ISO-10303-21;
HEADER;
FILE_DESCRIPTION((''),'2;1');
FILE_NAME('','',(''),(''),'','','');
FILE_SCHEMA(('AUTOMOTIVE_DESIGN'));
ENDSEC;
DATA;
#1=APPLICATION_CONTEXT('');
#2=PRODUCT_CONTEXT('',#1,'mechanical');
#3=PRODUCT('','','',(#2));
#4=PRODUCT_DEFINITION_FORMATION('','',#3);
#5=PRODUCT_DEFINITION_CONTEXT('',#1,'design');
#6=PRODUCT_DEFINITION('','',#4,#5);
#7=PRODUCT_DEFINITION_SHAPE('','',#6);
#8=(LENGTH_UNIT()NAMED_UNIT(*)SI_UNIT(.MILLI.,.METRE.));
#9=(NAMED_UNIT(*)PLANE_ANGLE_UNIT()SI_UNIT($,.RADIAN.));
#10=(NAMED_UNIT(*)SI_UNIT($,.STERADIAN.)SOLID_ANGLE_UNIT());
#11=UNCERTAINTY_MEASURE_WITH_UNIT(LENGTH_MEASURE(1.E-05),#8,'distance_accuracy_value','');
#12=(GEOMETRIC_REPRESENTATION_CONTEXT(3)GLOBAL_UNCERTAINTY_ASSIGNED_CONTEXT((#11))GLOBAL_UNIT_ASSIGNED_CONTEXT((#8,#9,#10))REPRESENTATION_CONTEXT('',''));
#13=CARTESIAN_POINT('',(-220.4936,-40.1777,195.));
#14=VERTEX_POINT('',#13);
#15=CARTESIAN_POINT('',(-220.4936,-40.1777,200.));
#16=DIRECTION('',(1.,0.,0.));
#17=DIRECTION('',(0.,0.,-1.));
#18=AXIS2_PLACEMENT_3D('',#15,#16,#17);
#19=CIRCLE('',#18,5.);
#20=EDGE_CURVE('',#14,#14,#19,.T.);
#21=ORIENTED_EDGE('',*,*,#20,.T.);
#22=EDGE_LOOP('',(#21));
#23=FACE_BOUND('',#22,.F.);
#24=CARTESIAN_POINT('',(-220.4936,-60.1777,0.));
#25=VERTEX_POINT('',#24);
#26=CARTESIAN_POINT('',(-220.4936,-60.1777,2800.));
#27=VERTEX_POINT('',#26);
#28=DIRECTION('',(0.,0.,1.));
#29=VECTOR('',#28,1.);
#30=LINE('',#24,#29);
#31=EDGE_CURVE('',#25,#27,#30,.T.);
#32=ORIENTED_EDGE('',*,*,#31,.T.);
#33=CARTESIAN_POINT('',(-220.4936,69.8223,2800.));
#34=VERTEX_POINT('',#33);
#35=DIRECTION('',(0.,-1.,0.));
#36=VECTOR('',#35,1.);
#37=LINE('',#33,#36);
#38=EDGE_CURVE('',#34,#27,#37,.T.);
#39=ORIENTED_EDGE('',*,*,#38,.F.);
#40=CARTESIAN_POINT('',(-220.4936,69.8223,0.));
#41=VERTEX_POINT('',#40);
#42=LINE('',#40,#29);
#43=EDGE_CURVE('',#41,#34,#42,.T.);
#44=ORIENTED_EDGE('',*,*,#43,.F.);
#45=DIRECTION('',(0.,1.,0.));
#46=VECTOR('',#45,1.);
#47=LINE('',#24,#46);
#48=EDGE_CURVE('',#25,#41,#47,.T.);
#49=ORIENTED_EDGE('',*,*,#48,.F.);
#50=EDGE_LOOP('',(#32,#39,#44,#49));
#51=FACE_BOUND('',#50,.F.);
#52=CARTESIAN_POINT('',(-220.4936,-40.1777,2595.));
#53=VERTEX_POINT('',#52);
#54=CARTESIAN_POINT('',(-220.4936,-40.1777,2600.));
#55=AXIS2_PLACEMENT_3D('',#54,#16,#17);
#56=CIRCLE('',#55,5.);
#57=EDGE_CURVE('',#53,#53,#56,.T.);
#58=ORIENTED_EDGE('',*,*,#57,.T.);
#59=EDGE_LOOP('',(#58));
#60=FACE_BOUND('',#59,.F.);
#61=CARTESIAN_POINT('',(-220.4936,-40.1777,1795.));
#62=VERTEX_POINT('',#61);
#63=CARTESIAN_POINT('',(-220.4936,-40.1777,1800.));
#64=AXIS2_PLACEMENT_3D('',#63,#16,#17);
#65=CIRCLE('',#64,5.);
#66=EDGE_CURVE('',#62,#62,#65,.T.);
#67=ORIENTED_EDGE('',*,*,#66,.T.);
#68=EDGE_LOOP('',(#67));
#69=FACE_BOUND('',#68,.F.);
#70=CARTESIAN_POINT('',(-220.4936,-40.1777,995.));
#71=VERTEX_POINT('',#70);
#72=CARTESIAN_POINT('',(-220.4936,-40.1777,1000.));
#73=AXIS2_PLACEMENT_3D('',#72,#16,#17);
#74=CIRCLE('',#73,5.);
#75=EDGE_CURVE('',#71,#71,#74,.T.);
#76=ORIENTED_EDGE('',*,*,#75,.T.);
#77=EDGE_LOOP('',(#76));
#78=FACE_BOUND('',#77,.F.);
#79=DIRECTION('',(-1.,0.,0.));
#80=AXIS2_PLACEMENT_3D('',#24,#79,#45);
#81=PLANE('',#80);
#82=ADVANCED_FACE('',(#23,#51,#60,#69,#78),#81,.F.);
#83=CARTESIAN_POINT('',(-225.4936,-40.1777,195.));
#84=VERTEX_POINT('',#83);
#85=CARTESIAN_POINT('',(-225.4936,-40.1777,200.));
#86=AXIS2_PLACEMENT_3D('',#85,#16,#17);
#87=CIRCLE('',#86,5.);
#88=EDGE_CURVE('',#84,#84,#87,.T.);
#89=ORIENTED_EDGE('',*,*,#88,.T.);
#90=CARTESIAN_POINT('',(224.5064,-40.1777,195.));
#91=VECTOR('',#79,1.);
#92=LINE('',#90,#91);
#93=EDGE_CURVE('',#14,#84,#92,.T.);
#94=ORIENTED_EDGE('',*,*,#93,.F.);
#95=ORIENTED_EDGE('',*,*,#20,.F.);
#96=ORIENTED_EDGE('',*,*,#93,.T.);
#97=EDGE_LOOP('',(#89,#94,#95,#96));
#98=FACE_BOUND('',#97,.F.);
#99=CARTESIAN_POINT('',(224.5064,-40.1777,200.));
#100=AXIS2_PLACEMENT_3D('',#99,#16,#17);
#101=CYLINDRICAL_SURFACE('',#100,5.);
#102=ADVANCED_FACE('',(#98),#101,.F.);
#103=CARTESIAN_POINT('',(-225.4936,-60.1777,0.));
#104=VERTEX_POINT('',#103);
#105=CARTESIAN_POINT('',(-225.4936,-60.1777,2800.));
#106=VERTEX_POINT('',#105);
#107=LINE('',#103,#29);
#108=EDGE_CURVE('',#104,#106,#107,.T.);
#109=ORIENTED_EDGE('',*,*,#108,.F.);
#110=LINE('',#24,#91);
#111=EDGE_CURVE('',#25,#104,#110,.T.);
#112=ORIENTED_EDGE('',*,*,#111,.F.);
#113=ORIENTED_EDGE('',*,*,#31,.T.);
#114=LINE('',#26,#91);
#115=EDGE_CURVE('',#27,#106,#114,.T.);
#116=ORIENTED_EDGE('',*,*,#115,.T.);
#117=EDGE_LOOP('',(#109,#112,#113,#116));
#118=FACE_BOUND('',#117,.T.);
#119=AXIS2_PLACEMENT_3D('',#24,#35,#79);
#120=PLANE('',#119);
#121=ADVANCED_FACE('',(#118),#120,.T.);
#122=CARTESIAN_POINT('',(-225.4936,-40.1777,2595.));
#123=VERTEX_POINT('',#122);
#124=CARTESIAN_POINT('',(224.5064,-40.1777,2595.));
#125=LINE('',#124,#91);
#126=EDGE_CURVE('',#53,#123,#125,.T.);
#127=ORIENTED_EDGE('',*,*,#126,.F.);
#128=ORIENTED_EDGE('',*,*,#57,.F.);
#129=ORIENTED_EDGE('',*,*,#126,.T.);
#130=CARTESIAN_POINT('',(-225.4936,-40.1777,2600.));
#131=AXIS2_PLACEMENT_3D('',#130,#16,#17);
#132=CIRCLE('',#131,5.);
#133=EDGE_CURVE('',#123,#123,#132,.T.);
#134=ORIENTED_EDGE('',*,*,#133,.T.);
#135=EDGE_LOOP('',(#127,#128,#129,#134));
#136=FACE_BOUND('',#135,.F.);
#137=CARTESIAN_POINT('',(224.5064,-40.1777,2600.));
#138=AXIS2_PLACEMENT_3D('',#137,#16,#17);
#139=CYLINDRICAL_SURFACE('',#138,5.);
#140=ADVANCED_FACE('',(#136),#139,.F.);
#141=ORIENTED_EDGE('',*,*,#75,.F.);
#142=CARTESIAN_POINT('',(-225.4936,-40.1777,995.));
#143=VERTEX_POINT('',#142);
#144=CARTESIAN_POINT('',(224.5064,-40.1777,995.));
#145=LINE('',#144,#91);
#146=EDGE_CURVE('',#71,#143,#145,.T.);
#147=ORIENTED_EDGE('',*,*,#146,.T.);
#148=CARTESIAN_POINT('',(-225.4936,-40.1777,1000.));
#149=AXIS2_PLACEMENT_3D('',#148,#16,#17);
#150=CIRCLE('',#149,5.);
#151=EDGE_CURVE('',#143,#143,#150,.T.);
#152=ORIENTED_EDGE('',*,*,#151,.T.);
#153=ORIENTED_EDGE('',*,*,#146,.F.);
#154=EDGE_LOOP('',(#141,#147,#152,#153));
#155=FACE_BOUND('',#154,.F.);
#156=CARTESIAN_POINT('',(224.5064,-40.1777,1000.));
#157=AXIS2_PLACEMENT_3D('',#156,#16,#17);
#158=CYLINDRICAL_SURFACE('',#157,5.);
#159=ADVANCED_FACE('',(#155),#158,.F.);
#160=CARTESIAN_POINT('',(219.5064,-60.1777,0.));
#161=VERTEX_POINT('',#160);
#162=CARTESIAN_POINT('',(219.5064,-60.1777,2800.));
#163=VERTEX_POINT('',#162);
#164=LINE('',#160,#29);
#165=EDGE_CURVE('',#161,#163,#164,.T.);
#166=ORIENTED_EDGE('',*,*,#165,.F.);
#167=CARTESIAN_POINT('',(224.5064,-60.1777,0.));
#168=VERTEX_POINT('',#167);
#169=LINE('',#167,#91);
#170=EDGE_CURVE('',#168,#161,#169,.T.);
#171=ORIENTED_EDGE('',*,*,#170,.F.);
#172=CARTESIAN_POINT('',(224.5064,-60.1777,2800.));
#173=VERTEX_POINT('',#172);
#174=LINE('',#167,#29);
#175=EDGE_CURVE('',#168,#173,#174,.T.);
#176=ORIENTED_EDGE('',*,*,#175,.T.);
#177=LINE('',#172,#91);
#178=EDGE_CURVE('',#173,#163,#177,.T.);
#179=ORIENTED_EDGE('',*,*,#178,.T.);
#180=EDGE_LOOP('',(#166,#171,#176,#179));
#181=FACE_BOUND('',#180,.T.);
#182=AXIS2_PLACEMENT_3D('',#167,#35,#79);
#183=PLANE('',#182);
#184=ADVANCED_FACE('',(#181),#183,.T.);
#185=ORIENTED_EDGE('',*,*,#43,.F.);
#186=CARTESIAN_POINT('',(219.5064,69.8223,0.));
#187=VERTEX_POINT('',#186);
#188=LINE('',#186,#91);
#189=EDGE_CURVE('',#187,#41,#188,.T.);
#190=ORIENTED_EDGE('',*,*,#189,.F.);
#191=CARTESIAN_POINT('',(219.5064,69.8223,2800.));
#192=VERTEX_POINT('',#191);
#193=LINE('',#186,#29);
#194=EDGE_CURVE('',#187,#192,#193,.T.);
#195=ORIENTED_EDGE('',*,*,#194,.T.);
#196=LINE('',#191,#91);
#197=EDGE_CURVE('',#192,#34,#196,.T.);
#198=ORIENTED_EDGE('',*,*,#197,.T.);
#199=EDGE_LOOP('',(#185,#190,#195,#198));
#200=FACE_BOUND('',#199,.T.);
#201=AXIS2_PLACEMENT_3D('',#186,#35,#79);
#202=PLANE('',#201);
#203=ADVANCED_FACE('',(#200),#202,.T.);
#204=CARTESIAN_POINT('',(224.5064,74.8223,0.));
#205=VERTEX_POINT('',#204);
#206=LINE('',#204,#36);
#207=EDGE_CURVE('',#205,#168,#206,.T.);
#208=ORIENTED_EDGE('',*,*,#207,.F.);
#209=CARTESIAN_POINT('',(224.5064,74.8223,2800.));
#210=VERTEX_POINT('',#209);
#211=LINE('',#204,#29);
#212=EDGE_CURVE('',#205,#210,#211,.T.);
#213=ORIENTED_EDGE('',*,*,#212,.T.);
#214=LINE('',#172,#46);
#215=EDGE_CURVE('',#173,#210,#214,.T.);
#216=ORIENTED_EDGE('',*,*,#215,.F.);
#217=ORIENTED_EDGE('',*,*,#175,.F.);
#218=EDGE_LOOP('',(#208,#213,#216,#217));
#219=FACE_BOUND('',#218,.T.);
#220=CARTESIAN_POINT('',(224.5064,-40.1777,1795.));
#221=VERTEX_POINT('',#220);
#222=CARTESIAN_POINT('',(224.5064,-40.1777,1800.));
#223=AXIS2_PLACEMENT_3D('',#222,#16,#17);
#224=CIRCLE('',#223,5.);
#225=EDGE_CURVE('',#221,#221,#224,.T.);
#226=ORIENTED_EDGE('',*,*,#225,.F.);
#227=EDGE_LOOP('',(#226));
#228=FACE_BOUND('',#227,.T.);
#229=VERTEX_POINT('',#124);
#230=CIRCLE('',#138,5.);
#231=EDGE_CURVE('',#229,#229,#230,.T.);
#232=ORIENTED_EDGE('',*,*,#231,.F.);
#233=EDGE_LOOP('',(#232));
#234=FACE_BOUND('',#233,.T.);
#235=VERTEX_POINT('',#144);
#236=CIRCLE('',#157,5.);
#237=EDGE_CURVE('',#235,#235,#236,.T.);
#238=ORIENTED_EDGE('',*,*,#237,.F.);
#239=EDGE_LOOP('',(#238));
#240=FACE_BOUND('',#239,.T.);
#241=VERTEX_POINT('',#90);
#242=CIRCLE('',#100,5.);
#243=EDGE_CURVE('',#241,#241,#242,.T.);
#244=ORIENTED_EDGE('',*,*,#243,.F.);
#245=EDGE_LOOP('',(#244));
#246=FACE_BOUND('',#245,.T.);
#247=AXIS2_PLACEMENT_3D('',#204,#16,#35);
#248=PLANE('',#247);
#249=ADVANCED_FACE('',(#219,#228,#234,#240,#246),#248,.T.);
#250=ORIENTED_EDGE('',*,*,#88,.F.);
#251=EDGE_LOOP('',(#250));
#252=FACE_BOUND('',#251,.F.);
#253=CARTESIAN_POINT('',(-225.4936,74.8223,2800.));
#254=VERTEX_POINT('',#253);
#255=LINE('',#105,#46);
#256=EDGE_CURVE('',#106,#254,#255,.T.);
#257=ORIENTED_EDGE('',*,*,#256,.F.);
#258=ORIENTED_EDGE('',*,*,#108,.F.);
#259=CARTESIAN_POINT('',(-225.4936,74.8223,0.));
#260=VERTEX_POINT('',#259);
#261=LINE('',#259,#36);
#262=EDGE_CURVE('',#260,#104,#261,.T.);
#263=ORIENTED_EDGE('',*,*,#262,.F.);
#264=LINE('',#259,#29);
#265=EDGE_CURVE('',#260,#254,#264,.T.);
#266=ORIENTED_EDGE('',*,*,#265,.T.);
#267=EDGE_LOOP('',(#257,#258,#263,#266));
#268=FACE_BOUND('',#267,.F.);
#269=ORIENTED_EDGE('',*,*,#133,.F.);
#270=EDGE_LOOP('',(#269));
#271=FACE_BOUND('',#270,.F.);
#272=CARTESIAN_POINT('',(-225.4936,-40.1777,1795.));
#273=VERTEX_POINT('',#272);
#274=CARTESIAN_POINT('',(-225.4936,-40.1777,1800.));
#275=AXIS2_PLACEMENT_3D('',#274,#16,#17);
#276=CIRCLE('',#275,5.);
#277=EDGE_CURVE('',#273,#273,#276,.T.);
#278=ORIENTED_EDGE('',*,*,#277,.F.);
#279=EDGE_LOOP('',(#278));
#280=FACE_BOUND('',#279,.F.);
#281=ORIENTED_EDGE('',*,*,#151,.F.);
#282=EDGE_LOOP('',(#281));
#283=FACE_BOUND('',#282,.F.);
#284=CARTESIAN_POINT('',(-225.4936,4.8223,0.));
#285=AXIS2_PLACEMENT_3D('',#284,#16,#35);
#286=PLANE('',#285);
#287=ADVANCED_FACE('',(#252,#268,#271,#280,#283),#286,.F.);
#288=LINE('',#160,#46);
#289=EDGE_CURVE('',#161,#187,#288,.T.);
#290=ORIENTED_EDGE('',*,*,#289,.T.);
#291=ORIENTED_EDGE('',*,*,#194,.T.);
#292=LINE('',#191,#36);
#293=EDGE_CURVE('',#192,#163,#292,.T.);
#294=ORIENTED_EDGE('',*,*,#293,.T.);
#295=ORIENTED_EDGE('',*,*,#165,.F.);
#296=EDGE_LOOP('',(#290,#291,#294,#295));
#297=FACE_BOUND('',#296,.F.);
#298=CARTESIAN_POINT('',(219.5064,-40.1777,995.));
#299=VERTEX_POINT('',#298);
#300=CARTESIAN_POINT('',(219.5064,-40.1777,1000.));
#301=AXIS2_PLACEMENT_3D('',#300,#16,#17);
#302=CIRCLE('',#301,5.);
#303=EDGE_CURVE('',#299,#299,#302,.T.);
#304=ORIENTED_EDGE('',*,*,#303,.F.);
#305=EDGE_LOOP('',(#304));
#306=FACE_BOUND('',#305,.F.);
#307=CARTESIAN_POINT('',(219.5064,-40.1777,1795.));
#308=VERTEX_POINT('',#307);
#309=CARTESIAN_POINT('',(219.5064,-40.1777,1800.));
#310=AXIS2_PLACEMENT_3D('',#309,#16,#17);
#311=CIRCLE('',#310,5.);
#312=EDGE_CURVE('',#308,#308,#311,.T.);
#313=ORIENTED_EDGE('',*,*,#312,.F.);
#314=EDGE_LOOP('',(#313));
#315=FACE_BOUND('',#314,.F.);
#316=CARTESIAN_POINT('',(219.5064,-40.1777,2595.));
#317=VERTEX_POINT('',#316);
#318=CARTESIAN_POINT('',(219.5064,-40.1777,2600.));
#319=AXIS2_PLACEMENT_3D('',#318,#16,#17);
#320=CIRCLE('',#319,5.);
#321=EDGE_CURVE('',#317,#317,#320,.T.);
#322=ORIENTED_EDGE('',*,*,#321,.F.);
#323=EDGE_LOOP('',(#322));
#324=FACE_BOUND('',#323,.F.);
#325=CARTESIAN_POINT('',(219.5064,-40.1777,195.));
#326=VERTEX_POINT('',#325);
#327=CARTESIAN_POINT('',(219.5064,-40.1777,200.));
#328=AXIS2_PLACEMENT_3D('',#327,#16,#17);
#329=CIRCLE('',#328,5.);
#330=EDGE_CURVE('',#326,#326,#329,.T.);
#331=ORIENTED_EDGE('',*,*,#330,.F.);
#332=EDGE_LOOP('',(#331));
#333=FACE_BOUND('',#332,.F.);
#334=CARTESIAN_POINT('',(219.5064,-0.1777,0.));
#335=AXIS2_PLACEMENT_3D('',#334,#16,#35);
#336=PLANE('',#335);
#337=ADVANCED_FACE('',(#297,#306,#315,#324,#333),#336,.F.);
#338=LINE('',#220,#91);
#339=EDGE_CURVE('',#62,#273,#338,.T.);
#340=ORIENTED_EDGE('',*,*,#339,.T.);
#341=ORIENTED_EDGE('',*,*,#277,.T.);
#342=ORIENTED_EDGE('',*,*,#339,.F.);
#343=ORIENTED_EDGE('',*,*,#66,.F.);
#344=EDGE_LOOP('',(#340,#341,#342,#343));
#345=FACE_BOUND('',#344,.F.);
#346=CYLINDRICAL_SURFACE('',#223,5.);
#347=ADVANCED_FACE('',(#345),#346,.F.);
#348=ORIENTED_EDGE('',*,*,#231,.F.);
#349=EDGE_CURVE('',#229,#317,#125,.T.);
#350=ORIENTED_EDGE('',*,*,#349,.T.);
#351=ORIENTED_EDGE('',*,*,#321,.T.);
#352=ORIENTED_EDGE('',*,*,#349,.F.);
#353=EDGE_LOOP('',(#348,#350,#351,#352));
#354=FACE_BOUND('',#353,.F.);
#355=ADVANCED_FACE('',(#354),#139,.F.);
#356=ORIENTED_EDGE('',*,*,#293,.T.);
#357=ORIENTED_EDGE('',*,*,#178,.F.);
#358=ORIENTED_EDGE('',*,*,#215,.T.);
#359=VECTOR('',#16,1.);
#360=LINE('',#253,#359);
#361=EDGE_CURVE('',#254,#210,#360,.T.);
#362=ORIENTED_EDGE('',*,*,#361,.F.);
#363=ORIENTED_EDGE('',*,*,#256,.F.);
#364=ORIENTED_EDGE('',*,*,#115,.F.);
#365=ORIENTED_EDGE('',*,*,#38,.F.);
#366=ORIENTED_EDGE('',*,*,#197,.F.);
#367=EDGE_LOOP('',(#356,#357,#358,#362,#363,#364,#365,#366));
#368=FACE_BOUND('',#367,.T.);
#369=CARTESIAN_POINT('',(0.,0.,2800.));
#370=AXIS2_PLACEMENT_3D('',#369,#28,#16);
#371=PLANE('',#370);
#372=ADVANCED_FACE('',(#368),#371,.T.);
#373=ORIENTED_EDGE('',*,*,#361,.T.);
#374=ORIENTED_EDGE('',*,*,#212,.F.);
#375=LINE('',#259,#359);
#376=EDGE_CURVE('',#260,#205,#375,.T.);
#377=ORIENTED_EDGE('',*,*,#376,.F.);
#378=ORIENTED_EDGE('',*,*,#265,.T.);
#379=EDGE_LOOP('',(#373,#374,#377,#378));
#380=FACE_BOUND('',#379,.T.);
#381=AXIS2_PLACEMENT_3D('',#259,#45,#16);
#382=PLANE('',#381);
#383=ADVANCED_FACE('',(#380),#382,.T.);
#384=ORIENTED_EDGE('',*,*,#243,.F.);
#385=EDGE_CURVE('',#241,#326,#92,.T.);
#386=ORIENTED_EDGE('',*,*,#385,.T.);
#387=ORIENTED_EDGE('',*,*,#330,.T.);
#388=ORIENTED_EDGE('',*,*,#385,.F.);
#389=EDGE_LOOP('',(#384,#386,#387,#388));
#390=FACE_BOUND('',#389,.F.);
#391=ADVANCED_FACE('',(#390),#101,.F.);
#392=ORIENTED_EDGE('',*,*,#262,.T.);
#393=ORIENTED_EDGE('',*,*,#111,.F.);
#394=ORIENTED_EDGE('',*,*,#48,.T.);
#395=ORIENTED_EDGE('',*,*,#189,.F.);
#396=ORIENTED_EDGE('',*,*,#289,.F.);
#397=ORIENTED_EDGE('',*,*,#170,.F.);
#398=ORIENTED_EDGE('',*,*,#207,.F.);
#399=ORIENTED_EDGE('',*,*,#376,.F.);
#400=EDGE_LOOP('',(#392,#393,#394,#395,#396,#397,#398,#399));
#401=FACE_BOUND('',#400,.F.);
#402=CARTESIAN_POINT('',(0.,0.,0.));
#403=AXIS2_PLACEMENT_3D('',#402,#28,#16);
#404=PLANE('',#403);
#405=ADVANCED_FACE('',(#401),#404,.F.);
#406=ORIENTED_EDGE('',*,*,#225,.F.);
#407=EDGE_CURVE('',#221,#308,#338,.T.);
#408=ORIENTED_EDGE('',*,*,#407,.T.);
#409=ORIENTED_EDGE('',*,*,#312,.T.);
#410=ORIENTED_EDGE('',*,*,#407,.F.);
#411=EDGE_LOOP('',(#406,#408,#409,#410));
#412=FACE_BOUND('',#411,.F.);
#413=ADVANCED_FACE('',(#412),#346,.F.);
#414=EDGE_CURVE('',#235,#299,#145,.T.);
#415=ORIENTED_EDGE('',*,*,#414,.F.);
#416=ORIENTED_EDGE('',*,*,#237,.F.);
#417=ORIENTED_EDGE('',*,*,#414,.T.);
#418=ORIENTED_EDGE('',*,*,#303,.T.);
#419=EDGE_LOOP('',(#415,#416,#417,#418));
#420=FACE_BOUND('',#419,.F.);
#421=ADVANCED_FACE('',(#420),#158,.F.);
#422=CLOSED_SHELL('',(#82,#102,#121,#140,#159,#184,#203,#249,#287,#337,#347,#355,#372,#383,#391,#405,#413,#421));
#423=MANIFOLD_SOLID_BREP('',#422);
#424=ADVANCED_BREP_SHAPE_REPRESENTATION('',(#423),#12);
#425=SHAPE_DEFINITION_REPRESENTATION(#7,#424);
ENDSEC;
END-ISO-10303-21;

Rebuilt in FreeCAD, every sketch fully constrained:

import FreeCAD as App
import Part
import Sketcher

doc = App.newDocument("Part")
params = doc.addObject("Spreadsheet::Sheet", "Params")
for row, (alias, value) in enumerate([
    ("sketch1_width", "5 mm"),
    ("sketch1_width2", "440 mm"),
    ("sketch1_height", "130 mm"),
    ("pad1_length", "2800 mm"),
    ("sketch2_diameter", "10 mm"),
], start=1):
    params.set(f"A{row}", alias)
    params.set(f"B{row}", "=" + value)
    params.setAlias(f"B{row}", alias)

body = doc.addObject("PartDesign::Body", "Body")

# Sketch on XY plane
sketch1 = body.newObject("Sketcher::SketchObject", "Sketch")
sketch1.AttachmentSupport = (doc.getObject("XY_Plane"), [""])
sketch1.MapMode = "FlatFace"
sketch1.addGeometry([
    Part.LineSegment(App.Vector(-225.4936, -60.1777, 0), App.Vector(-220.4936, -60.1777, 0)),  # 0
    Part.LineSegment(App.Vector(-220.4936, -60.1777, 0), App.Vector(-220.4936, 69.8223, 0)),  # 1
    Part.LineSegment(App.Vector(-220.4936, 69.8223, 0), App.Vector(219.5064, 69.8223, 0)),  # 2
    Part.LineSegment(App.Vector(219.5064, 69.8223, 0), App.Vector(219.5064, -60.1777, 0)),  # 3
    Part.LineSegment(App.Vector(219.5064, -60.1777, 0), App.Vector(224.5064, -60.1777, 0)),  # 4
    Part.LineSegment(App.Vector(224.5064, -60.1777, 0), App.Vector(224.5064, 74.8223, 0)),  # 5
    Part.LineSegment(App.Vector(224.5064, 74.8223, 0), App.Vector(-225.4936, 74.8223, 0)),  # 6
    Part.LineSegment(App.Vector(-225.4936, 74.8223, 0), App.Vector(-225.4936, -60.1777, 0)),  # 7
], False)
sketch1.addConstraint([
    Sketcher.Constraint("Coincident", 0, 2, 1, 1),
    Sketcher.Constraint("Coincident", 1, 2, 2, 1),
    Sketcher.Constraint("Coincident", 2, 2, 3, 1),
    Sketcher.Constraint("Coincident", 3, 2, 4, 1),
    Sketcher.Constraint("Coincident", 4, 2, 5, 1),
    Sketcher.Constraint("Coincident", 5, 2, 6, 1),
    Sketcher.Constraint("Coincident", 6, 2, 7, 1),
    Sketcher.Constraint("Coincident", 7, 2, 0, 1),
    Sketcher.Constraint("Horizontal", 0),
    Sketcher.Constraint("Vertical", 1),
    Sketcher.Constraint("Horizontal", 2),
    Sketcher.Constraint("Vertical", 3),
    Sketcher.Constraint("Horizontal", 4),
    Sketcher.Constraint("Vertical", 5),
    Sketcher.Constraint("Horizontal", 6),
    Sketcher.Constraint("Vertical", 7),
    Sketcher.Constraint("Horizontal", 0, 2, 3, 2),
    Sketcher.Constraint("Equal", 0, 4),
    Sketcher.Constraint("DistanceX", 0, 1, 0, 2, 5.0),
    Sketcher.Constraint("DistanceX", 2, 1, 2, 2, 440.0),
    Sketcher.Constraint("DistanceY", 2, 2, 5, 2, 5.0),
    Sketcher.Constraint("DistanceY", 1, 1, 1, 2, 130.0),
    Sketcher.Constraint("DistanceX", 0, 2, -1, 1, 220.4936),
    Sketcher.Constraint("DistanceY", 0, 2, -1, 1, 60.1777),
])
sketch1.setExpression("Constraints[18]", "Params.sketch1_width")
sketch1.setExpression("Constraints[19]", "Params.sketch1_width2")
sketch1.setExpression("Constraints[21]", "Params.sketch1_height")
pad1 = body.newObject("PartDesign::Pad", "Pad")
pad1.Profile = sketch1
pad1.setExpression("Length", "Params.pad1_length")

# Sketch on YZ plane
sketch2 = body.newObject("Sketcher::SketchObject", "Sketch001")
sketch2.AttachmentSupport = (doc.getObject("YZ_Plane"), [""])
sketch2.MapMode = "FlatFace"
sketch2.AttachmentOffset = App.Placement(App.Vector(0, 0, 224.5064), App.Rotation())
sketch2.addGeometry([
    Part.Circle(App.Vector(-40.1777, 200, 0), App.Vector(0, 0, 1), 5),
    Part.Circle(App.Vector(-40.1777, 1000, 0), App.Vector(0, 0, 1), 5),
    Part.Circle(App.Vector(-40.1777, 1800, 0), App.Vector(0, 0, 1), 5),
    Part.Circle(App.Vector(-40.1777, 2600, 0), App.Vector(0, 0, 1), 5),
], False)
sketch2.addConstraint([
    Sketcher.Constraint("Equal", 0, 1),
    Sketcher.Constraint("Equal", 1, 2),
    Sketcher.Constraint("Equal", 2, 3),
    Sketcher.Constraint("Vertical", 0, 3, 1, 3),
    Sketcher.Constraint("Vertical", 1, 3, 2, 3),
    Sketcher.Constraint("Vertical", 2, 3, 3, 3),
    Sketcher.Constraint("Diameter", 0, 10.0),
    Sketcher.Constraint("DistanceY", -1, 1, 0, 3, 200.0),
    Sketcher.Constraint("DistanceY", 0, 3, 1, 3, 800.0),
    Sketcher.Constraint("DistanceY", 1, 3, 2, 3, 800.0),
    Sketcher.Constraint("DistanceY", 2, 3, 3, 3, 800.0),
    Sketcher.Constraint("DistanceX", 0, 3, -1, 1, 40.1777),
])
sketch2.setExpression("Constraints[6]", "Params.sketch2_diameter")
pocket1 = body.newObject("PartDesign::Pocket", "Pocket")
pocket1.Profile = sketch2
pocket1.Type = "ThroughAll"

doc.recompute()
